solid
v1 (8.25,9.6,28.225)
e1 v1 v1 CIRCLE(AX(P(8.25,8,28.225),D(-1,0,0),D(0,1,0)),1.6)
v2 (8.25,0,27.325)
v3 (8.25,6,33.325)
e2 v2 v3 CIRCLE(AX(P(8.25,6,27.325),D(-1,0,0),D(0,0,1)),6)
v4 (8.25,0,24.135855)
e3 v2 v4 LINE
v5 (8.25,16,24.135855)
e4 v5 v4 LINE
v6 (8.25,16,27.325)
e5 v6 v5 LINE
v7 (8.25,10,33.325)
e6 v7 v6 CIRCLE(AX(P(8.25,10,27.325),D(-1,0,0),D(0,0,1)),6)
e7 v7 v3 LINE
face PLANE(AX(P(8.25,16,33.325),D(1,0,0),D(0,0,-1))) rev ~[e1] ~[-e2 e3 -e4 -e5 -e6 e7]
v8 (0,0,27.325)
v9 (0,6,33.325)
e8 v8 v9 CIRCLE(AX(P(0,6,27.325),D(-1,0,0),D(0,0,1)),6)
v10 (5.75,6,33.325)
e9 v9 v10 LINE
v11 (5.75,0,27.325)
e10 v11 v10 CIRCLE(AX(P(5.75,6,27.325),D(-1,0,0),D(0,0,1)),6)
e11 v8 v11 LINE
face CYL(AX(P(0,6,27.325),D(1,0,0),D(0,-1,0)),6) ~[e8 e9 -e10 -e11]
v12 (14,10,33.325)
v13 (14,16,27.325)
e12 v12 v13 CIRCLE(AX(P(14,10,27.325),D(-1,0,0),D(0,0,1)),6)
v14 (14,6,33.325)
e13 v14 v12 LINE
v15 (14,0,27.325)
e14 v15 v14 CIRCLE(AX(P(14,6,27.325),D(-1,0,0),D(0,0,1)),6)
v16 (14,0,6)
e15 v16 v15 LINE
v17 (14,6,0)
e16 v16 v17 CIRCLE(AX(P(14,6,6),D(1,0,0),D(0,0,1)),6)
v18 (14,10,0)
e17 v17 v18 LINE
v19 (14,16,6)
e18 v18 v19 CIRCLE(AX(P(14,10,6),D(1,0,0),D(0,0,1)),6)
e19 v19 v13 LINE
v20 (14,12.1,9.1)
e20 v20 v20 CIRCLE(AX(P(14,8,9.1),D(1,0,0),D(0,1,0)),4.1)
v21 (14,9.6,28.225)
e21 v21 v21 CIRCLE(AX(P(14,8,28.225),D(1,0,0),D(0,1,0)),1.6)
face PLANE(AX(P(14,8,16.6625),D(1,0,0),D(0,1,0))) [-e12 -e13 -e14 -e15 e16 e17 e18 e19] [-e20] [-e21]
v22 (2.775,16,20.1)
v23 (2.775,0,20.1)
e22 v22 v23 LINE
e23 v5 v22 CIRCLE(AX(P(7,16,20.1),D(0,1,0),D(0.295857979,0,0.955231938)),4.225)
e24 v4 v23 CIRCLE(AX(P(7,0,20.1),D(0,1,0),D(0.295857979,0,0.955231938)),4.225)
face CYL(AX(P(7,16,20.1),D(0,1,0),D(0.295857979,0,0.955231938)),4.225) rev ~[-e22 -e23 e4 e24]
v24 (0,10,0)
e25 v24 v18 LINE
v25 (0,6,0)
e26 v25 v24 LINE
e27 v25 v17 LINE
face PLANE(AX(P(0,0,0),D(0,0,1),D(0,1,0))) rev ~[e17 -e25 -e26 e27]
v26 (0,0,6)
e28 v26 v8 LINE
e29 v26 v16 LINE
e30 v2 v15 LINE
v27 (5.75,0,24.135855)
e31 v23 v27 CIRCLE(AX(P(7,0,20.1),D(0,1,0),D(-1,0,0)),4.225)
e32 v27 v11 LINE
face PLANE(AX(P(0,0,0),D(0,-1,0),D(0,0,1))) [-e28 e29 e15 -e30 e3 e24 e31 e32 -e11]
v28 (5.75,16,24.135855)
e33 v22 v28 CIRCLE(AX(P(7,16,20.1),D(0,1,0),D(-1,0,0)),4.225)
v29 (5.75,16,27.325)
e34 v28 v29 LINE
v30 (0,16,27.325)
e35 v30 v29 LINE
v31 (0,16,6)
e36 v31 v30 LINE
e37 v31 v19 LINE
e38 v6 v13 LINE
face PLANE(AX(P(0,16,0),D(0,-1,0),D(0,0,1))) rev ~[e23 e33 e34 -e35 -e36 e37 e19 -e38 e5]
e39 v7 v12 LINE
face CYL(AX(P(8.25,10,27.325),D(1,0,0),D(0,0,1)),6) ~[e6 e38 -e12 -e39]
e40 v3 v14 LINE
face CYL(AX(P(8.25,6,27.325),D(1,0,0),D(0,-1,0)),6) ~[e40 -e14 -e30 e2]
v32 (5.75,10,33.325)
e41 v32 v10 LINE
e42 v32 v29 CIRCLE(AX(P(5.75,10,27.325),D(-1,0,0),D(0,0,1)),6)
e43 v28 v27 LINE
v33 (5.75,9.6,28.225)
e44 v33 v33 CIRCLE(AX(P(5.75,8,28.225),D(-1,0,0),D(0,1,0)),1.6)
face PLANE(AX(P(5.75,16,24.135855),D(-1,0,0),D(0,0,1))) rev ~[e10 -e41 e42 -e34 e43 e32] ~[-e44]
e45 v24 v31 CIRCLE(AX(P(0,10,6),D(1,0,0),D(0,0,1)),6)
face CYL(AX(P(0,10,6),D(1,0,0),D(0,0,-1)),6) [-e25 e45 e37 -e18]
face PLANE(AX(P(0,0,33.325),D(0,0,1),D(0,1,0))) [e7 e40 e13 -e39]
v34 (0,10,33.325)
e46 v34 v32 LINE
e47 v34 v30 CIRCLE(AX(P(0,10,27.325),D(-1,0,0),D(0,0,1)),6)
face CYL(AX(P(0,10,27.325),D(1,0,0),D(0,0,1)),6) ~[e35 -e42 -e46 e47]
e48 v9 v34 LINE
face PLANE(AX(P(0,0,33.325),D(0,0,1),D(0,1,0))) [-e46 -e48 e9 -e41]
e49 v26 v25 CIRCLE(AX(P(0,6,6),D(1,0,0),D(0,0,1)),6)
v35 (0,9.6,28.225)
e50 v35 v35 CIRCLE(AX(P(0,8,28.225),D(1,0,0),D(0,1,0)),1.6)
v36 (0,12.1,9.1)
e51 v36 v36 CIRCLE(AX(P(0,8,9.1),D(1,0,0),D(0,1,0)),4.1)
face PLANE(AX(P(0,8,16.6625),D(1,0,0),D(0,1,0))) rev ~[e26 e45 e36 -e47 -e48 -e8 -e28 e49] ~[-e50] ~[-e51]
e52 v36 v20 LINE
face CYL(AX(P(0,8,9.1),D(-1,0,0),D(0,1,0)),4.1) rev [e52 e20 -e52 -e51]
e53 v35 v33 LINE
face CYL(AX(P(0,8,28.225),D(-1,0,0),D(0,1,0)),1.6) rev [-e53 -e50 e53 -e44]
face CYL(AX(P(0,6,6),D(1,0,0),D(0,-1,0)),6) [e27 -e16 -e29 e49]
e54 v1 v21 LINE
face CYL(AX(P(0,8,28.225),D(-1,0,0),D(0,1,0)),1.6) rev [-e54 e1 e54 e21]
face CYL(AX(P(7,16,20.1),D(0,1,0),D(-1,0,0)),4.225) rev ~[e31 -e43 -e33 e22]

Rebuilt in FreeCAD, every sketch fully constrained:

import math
import FreeCAD as App
import Part
import Sketcher
Q = App.Units.Quantity


def edges_at(feature, points):
    """Names of the edges that pass closest to the given points."""
    edges = feature.Shape.Edges
    near = lambda p: min(range(len(edges)), key=lambda i: edges[i].distToShape(Part.Vertex(*p))[0])
    return sorted({f"Edge{near(p) + 1}" for p in points})

doc = App.newDocument("Part")
body = doc.addObject("PartDesign::Body", "Body")

# Sketch on YZ plane
sketch1 = body.newObject("Sketcher::SketchObject", "Sketch")
sketch1.AttachmentSupport = (doc.getObject("YZ_Plane"), [""])
sketch1.MapMode = "FlatFace"
sketch1.addGeometry(Part.LineSegment(App.Vector(0, 33.3, 0), App.Vector(0, 0, 0)), False)
sketch1.addGeometry(Part.LineSegment(App.Vector(0, 0, 0), App.Vector(16, 0, 0)), False)
sketch1.addGeometry(Part.LineSegment(App.Vector(16, 0, 0), App.Vector(16, 33.3, 0)), False)
sketch1.addGeometry(Part.LineSegment(App.Vector(16, 33.3, 0), App.Vector(0, 33.3, 0)), False)
sketch1.addGeometry(Part.Circle(App.Vector(8, 9.1, 0), App.Vector(0, 0, 1), 4.1), False)
sketch1.addGeometry(Part.Circle(App.Vector(8, 28.2, 0), App.Vector(0, 0, 1), 1.6), False)
sketch1.addConstraint(Sketcher.Constraint("Coincident", 0, 2, 1, 1))
sketch1.addConstraint(Sketcher.Constraint("Coincident", 1, 2, 2, 1))
sketch1.addConstraint(Sketcher.Constraint("Coincident", 2, 2, 3, 1))
sketch1.addConstraint(Sketcher.Constraint("Coincident", 3, 2, 0, 1))
sketch1.addConstraint(Sketcher.Constraint("Vertical", 0))
sketch1.addConstraint(Sketcher.Constraint("Horizontal", 1))
sketch1.addConstraint(Sketcher.Constraint("Vertical", 2))
sketch1.addConstraint(Sketcher.Constraint("Horizontal", 3))
sketch1.addConstraint(Sketcher.Constraint("Coincident", 0, 2, -1, 1))
sketch1.addConstraint(Sketcher.Constraint("Vertical", 4, 3, 5, 3))
sketch1.addConstraint(Sketcher.Constraint("Diameter", 4, Q("8.2 mm")))
sketch1.addConstraint(Sketcher.Constraint("Diameter", 5, Q("3.2 mm")))
sketch1.addConstraint(Sketcher.Constraint("DistanceX", 1, 1, 1, 2, Q("16 mm")))
sketch1.addConstraint(Sketcher.Constraint("DistanceX", -1, 1, 4, 3, Q("8 mm")))
sketch1.addConstraint(Sketcher.Constraint("DistanceY", -1, 1, 4, 3, Q("9.1 mm")))
sketch1.addConstraint(Sketcher.Constraint("DistanceY", 5, 3, 2, 2, Q("5.1 mm")))
sketch1.addConstraint(Sketcher.Constraint("DistanceY", 0, 2, 0, 1, Q("33.325 mm")))
pad1 = body.newObject("PartDesign::Pad", "Pad")
pad1.Profile = sketch1
pad1.Length = 14

# Sketch on XZ plane
sketch2 = body.newObject("Sketcher::SketchObject", "Sketch001")
sketch2.AttachmentSupport = (doc.getObject("XZ_Plane"), [""])
sketch2.MapMode = "FlatFace"
sketch2.AttachmentOffset = App.Placement(App.Vector(0, 0, -16), App.Rotation())
sketch2.addGeometry(Part.ArcOfCircle(Part.Circle(App.Vector(7, 20.1, 0), App.Vector(0, 0, 1), 4.2), math.radians(-180), math.radians(73)), False)
sketch2.addGeometry(Part.ArcOfCircle(Part.Circle(App.Vector(7, 20.1, 0), App.Vector(0, 0, 1), 4.2), math.radians(107), math.radians(180)), False)
sketch2.addGeometry(Part.LineSegment(App.Vector(5.8, 24.1, 0), App.Vector(5.8, 33.3, 0)), False)
sketch2.addGeometry(Part.LineSegment(App.Vector(5.8, 33.3, 0), App.Vector(8.2, 33.3, 0)), False)
sketch2.addGeometry(Part.LineSegment(App.Vector(8.2, 33.3, 0), App.Vector(8.2, 24.1, 0)), False)
sketch2.addConstraint(Sketcher.Constraint("Tangent", 0, 1, 1, 2))
sketch2.addConstraint(Sketcher.Constraint("Coincident", 1, 1, 2, 1))
sketch2.addConstraint(Sketcher.Constraint("Coincident", 2, 2, 3, 1))
sketch2.addConstraint(Sketcher.Constraint("Coincident", 3, 2, 4, 1))
sketch2.addConstraint(Sketcher.Constraint("Coincident", 4, 2, 0, 2))
sketch2.addConstraint(Sketcher.Constraint("Vertical", 2))
sketch2.addConstraint(Sketcher.Constraint("Horizontal", 3))
sketch2.addConstraint(Sketcher.Constraint("Vertical", 4))
sketch2.addConstraint(Sketcher.Constraint("Equal", 0, 1))
sketch2.addConstraint(Sketcher.Constraint("Horizontal", 1, 3, 0, 1))
sketch2.addConstraint(Sketcher.Constraint("Horizontal", 1, 1, 4, 2))
sketch2.addConstraint(Sketcher.Constraint("DistanceX", 3, 1, 3, 2, Q("2.5 mm")))
sketch2.addConstraint(Sketcher.Constraint("DistanceX", -1, 1, 0, 3, Q("7 mm")))
sketch2.addConstraint(Sketcher.Constraint("Radius", 0, Q("4.225 mm")))
sketch2.addConstraint(Sketcher.Constraint("DistanceY", -1, 1, 0, 3, Q("20.1 mm")))
sketch2.addConstraint(Sketcher.Constraint("DistanceY", -1, 1, 2, 2, Q("33.325 mm")))
pocket1 = body.newObject("PartDesign::Pocket", "Pocket")
pocket1.Profile = sketch2
pocket1.Type = "ThroughAll"
pocket1.Reversed = True
doc.recompute()

fillet = body.newObject("PartDesign::Fillet", "Fillet")
fillet.Base = (pocket1, edges_at(pocket1, [
    (7, 16, 0),
    (7, 0, 0),
    (11.125, 0, 33.325),
    (2.875, 0, 33.325),
    (11.125, 16, 33.325),
    (2.875, 16, 33.325),
]))
fillet.Radius = 6

doc.recompute()
